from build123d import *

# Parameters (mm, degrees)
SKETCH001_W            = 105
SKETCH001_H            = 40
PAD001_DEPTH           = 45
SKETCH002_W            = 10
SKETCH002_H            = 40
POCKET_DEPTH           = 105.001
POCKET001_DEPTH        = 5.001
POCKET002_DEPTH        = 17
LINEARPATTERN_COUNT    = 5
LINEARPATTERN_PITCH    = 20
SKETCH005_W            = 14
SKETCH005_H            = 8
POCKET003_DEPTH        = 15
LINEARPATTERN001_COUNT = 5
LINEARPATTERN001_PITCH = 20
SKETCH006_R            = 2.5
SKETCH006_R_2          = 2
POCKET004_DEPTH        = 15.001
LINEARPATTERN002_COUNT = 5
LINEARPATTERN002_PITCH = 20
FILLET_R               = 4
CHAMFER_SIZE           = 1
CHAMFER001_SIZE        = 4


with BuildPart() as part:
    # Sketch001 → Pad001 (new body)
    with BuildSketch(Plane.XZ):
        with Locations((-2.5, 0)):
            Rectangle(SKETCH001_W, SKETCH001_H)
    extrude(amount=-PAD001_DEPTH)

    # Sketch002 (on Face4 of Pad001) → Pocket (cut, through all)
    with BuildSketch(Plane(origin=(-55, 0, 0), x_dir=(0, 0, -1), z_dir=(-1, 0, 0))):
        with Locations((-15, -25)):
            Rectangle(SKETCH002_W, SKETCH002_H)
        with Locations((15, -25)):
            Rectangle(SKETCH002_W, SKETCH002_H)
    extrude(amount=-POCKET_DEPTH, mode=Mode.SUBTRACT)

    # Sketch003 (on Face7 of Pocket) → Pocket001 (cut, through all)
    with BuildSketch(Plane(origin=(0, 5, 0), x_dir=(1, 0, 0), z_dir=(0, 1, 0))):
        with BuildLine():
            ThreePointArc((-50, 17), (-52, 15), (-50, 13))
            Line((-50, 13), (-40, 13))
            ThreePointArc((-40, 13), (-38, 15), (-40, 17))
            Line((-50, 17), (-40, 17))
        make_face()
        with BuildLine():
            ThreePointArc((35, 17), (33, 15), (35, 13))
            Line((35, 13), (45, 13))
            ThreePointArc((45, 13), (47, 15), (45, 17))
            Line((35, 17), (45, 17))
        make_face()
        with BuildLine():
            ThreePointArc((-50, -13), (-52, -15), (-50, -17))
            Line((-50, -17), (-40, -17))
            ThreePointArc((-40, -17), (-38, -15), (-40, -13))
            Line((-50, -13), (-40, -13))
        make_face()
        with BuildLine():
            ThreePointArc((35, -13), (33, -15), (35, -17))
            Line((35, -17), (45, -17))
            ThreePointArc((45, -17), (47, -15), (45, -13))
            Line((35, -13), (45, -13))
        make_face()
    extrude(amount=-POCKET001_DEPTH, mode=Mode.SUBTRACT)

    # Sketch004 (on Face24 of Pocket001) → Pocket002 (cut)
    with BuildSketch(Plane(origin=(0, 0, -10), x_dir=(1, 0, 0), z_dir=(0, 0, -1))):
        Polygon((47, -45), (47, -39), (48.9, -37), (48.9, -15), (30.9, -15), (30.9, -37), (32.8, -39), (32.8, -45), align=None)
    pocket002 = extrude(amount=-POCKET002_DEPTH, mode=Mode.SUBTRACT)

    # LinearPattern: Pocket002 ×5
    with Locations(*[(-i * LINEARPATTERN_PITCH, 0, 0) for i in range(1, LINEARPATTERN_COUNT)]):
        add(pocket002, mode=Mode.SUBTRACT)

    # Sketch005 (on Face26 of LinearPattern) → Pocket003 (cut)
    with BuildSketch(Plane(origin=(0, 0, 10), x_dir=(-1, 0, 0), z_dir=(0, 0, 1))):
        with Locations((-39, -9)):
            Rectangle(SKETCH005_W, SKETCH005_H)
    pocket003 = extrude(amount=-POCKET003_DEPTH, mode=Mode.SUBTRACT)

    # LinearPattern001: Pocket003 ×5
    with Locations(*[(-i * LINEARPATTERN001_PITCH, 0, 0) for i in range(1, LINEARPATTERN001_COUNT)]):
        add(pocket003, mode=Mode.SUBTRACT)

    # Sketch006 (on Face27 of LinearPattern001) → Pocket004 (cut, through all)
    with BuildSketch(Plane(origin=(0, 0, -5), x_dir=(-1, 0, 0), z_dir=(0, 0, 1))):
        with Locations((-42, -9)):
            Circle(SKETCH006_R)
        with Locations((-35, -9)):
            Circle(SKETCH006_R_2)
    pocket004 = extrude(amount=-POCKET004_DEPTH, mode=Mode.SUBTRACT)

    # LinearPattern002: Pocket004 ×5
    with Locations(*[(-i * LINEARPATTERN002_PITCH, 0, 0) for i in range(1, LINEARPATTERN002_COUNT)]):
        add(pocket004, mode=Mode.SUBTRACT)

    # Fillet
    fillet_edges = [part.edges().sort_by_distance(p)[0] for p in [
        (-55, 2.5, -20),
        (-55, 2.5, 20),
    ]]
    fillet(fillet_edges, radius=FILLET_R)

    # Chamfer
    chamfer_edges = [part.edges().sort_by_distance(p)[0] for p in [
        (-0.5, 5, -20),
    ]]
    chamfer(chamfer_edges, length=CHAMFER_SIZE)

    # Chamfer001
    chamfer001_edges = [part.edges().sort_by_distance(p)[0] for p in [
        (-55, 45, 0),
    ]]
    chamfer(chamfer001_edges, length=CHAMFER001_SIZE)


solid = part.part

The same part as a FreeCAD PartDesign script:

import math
import FreeCAD as App
import Part
import Sketcher
from FreeCAD import Vector


def edges_at(feature, points):
    """Names of the edges that pass closest to the given points."""
    edges = feature.Shape.Edges
    near = lambda p: min(range(len(edges)), key=lambda i: edges[i].distToShape(Part.Vertex(*p))[0])
    return sorted({f"Edge{near(p) + 1}" for p in points})


def add_polygon(sketch, points):
    """Adds a closed chain of lines whose ends are joined by coincident constraints."""
    first, n = sketch.GeometryCount, len(points)
    for a, b in zip(points, points[1:] + points[:1]):
        sketch.addGeometry(Part.LineSegment(App.Vector(*a, 0), App.Vector(*b, 0)), False)
    for i in range(n):
        sketch.addConstraint(Sketcher.Constraint("Coincident", first + i, 2, first + (i + 1) % n, 1))

doc = App.newDocument("Part")
params = doc.addObject("Spreadsheet::Sheet", "Params")
for row, (alias, value) in enumerate([
    ("sketch1_width", "105 mm"),
    ("sketch1_height", "40 mm"),
    ("pad1_length", "45 mm"),
    ("sketch2_width", "40 mm"),
    ("sketch2_height", "10 mm"),
    ("sketch3_radius", "2 mm"),
    ("sketch3_width", "10 mm"),
    ("sketch4_width", "18 mm"),
    ("sketch4_height", "6 mm"),
    ("sketch4_height2", "22 mm"),
    ("sketch4_width2", "14.2 mm"),
    ("pocket3_length", "17 mm"),
    ("linearpattern_pitch", "20 mm"),
    ("sketch5_width", "14 mm"),
    ("sketch5_height", "8 mm"),
    ("pocket4_length", "15 mm"),
    ("linearpattern2_pitch", "20 mm"),
    ("sketch6_diameter", "5 mm"),
    ("sketch6_diameter2", "4 mm"),
    ("linearpattern3_pitch", "20 mm"),
    ("fillet_radius", "4 mm"),
    ("chamfer_size", "1 mm"),
    ("chamfer2_size", "4 mm"),
], start=1):
    params.set(f"A{row}", alias)
    params.set(f"B{row}", "=" + value)
    params.setAlias(f"B{row}", alias)

body = doc.addObject("PartDesign::Body", "Body")

# Sketch on XZ plane
sketch1 = body.newObject("Sketcher::SketchObject", "Sketch")
sketch1.AttachmentSupport = (doc.getObject("XZ_Plane"), [""])
sketch1.MapMode = "FlatFace"
add_polygon(sketch1, [(-55, 20), (-55, -20), (50, -20), (50, 20)])  # lines 0-3
sketch1.addConstraint([
    Sketcher.Constraint("Vertical", 0),
    Sketcher.Constraint("Horizontal", 1),
    Sketcher.Constraint("Vertical", 2),
    Sketcher.Constraint("Horizontal", 3),
    Sketcher.Constraint("DistanceX", 1, 1, 1, 2, 105.0),
    Sketcher.Constraint("DistanceY", 0, 2, 0, 1, 40.0),
    Sketcher.Constraint("DistanceX", 0, 2, -1, 1, 55.0),
    Sketcher.Constraint("DistanceY", 0, 2, -1, 1, 20.0),
])
sketch1.setExpression("Constraints[8]", "Params.sketch1_width")
sketch1.setExpression("Constraints[9]", "Params.sketch1_height")
pad1 = body.newObject("PartDesign::Pad", "Pad")
pad1.Profile = sketch1
pad1.setExpression("Length", "Params.pad1_length")
pad1.Reversed = True

# Sketch on YZ plane
sketch2 = body.newObject("Sketcher::SketchObject", "Sketch001")
sketch2.AttachmentSupport = (doc.getObject("YZ_Plane"), [""])
sketch2.MapMode = "FlatFace"
sketch2.AttachmentOffset = App.Placement(Vector(0, 0, -55), App.Rotation())
add_polygon(sketch2, [(5, 20), (45, 20), (45, 10), (5, 10)])  # lines 0-3
add_polygon(sketch2, [(5, -10), (45, -10), (45, -20), (5, -20)])  # lines 4-7
sketch2.addConstraint([
    Sketcher.Constraint("Horizontal", 0),
    Sketcher.Constraint("Vertical", 1),
    Sketcher.Constraint("Horizontal", 2),
    Sketcher.Constraint("Vertical", 3),
    Sketcher.Constraint("Horizontal", 4),
    Sketcher.Constraint("Vertical", 5),
    Sketcher.Constraint("Horizontal", 6),
    Sketcher.Constraint("Vertical", 7),
    Sketcher.Constraint("Symmetric", 1, 2, 4, 2, -1),
    Sketcher.Constraint("Symmetric", 3, 2, 6, 2, -1),
    Sketcher.Constraint("DistanceX", 0, 1, 0, 2, 40.0),
    Sketcher.Constraint("DistanceY", 1, 2, 1, 1, 10.0),
    Sketcher.Constraint("DistanceX", -1, 1, 0, 2, 45.0),
    Sketcher.Constraint("DistanceY", -1, 1, 0, 2, 20.0),
])
sketch2.setExpression("Constraints[18]", "Params.sketch2_width")
sketch2.setExpression("Constraints[19]", "Params.sketch2_height")
pocket1 = body.newObject("PartDesign::Pocket", "Pocket")
pocket1.Profile = sketch2
pocket1.Type = "ThroughAll"
pocket1.Reversed = True

# Sketch on XZ plane
sketch3 = body.newObject("Sketcher::SketchObject", "Sketch002")
sketch3.AttachmentSupport = (doc.getObject("XZ_Plane"), [""])
sketch3.MapMode = "FlatFace"
sketch3.AttachmentOffset = App.Placement(Vector(0, 0, -5), App.Rotation())
sketch3.addGeometry([
    Part.ArcOfCircle(Part.Circle(Vector(-50, -15, 0), Vector(0, 0, 1), 2), math.radians(90), math.radians(270)),  # 0
    Part.LineSegment(Vector(-50, -13, 0), Vector(-40, -13, 0)),  # 1
    Part.ArcOfCircle(Part.Circle(Vector(-40, -15, 0), Vector(0, 0, 1), 2), math.radians(-90), math.radians(90)),  # 2
    Part.LineSegment(Vector(-40, -17, 0), Vector(-50, -17, 0)),  # 3
    Part.ArcOfCircle(Part.Circle(Vector(35, -15, 0), Vector(0, 0, 1), 2), math.radians(90), math.radians(270)),  # 4
    Part.LineSegment(Vector(35, -13, 0), Vector(45, -13, 0)),  # 5
    Part.ArcOfCircle(Part.Circle(Vector(45, -15, 0), Vector(0, 0, 1), 2), math.radians(-90), math.radians(90)),  # 6
    Part.LineSegment(Vector(45, -17, 0), Vector(35, -17, 0)),  # 7
    Part.ArcOfCircle(Part.Circle(Vector(-50, 15, 0), Vector(0, 0, 1), 2), math.radians(90), math.radians(270)),  # 8
    Part.LineSegment(Vector(-50, 17, 0), Vector(-40, 17, 0)),  # 9
    Part.ArcOfCircle(Part.Circle(Vector(-40, 15, 0), Vector(0, 0, 1), 2), math.radians(-90), math.radians(90)),  # 10
    Part.LineSegment(Vector(-40, 13, 0), Vector(-50, 13, 0)),  # 11
    Part.ArcOfCircle(Part.Circle(Vector(35, 15, 0), Vector(0, 0, 1), 2), math.radians(90), math.radians(270)),  # 12
    Part.LineSegment(Vector(35, 17, 0), Vector(45, 17, 0)),  # 13
    Part.ArcOfCircle(Part.Circle(Vector(45, 15, 0), Vector(0, 0, 1), 2), math.radians(-90), math.radians(90)),  # 14
    Part.LineSegment(Vector(45, 13, 0), Vector(35, 13, 0)),  # 15
], False)
sketch3.addConstraint([
    Sketcher.Constraint("Tangent", 0, 1, 1, 1),
    Sketcher.Constraint("Tangent", 1, 2, 2, 2),
    Sketcher.Constraint("Tangent", 2, 1, 3, 1),
    Sketcher.Constraint("Tangent", 3, 2, 0, 2),
    Sketcher.Constraint("Tangent", 4, 1, 5, 1),
    Sketcher.Constraint("Tangent", 5, 2, 6, 2),
    Sketcher.Constraint("Tangent", 6, 1, 7, 1),
    Sketcher.Constraint("Tangent", 7, 2, 4, 2),
    Sketcher.Constraint("Tangent", 8, 1, 9, 1),
    Sketcher.Constraint("Tangent", 9, 2, 10, 2),
    Sketcher.Constraint("Tangent", 10, 1, 11, 1),
    Sketcher.Constraint("Tangent", 11, 2, 8, 2),
    Sketcher.Constraint("Tangent", 12, 1, 13, 1),
    Sketcher.Constraint("Tangent", 13, 2, 14, 2),
    Sketcher.Constraint("Tangent", 14, 1, 15, 1),
    Sketcher.Constraint("Tangent", 15, 2, 12, 2),
    Sketcher.Constraint("Horizontal", 1),
    Sketcher.Constraint("Horizontal", 3),
    Sketcher.Constraint("Horizontal", 5),
    Sketcher.Constraint("Horizontal", 7),
    Sketcher.Constraint("Horizontal", 9),
    Sketcher.Constraint("Horizontal", 11),
    Sketcher.Constraint("Horizontal", 13),
    Sketcher.Constraint("Horizontal", 15),
    Sketcher.Constraint("Equal", 2, 4),
    Sketcher.Constraint("Equal", 6, 8),
    Sketcher.Constraint("Equal", 10, 12),
    Sketcher.Constraint("Symmetric", 0, 3, 8, 3, -1),
    Sketcher.Constraint("Symmetric", 4, 3, 12, 3, -1),
    Sketcher.Constraint("Horizontal", 2, 3, 4, 3),
    Sketcher.Constraint("Vertical", 2, 3, 10, 3),
    Sketcher.Constraint("Vertical", 6, 3, 14, 3),
    Sketcher.Constraint("Equal", 3, 5),
    Sketcher.Constraint("Radius", 0, 2.0),
    Sketcher.Constraint("DistanceX", 1, 1, 1, 2, 10.0),
    Sketcher.Constraint("DistanceX", 0, 3, -1, 1, 50.0),
    Sketcher.Constraint("DistanceY", 0, 3, -1, 1, 15.0),
    Sketcher.Constraint("DistanceX", -1, 1, 4, 3, 35.0),
])
sketch3.setExpression("Constraints[33]", "Params.sketch3_radius")
sketch3.setExpression("Constraints[34]", "Params.sketch3_width")
pocket2 = body.newObject("PartDesign::Pocket", "Pocket001")
pocket2.Profile = sketch3
pocket2.Type = "ThroughAll"
pocket2.Reversed = True

# Sketch on XY plane
sketch4 = body.newObject("Sketcher::SketchObject", "Sketch003")
sketch4.AttachmentSupport = (doc.getObject("XY_Plane"), [""])
sketch4.MapMode = "FlatFace"
sketch4.AttachmentOffset = App.Placement(Vector(0, 0, -10), App.Rotation())
add_polygon(sketch4, [(47, 45), (47, 39), (48.9, 37), (48.9, 15), (30.9, 15), (30.9, 37), (32.8, 39), (32.8, 45)])  # lines 0-7
sketch4.addConstraint([
    Sketcher.Constraint("Vertical", 0),
    Sketcher.Constraint("Vertical", 2),
    Sketcher.Constraint("Horizontal", 3),
    Sketcher.Constraint("Vertical", 4),
    Sketcher.Constraint("Vertical", 6),
    Sketcher.Constraint("Horizontal", 7),
    Sketcher.Constraint("Horizontal", 1, 2, 4, 2),
    Sketcher.Constraint("Horizontal", 0, 2, 5, 2),
    Sketcher.Constraint("Equal", 1, 5),
    Sketcher.Constraint("DistanceX", 3, 2, 3, 1, 18.0),
    Sketcher.Constraint("DistanceY", 0, 2, 0, 1, 6.0),
    Sketcher.Constraint("DistanceY", 2, 2, 2, 1, 22.0),
    Sketcher.Constraint("DistanceX", 7, 1, 7, 2, 14.2),
    Sketcher.Constraint("DistanceX", -1, 1, 0, 2, 47.0),
    Sketcher.Constraint("DistanceY", -1, 1, 0, 2, 39.0),
    Sketcher.Constraint("DistanceY", -1, 1, 1, 2, 37.0),
])
sketch4.setExpression("Constraints[17]", "Params.sketch4_width")
sketch4.setExpression("Constraints[18]", "Params.sketch4_height")
sketch4.setExpression("Constraints[19]", "Params.sketch4_height2")
sketch4.setExpression("Constraints[20]", "Params.sketch4_width2")
pocket3 = body.newObject("PartDesign::Pocket", "Pocket002")
pocket3.Profile = sketch4
pocket3.setExpression("Length", "Params.pocket3_length")
pocket3.Reversed = True
doc.recompute()

linearpattern = body.newObject("PartDesign::LinearPattern", "LinearPattern")
linearpattern.Originals = [pocket3]
linearpattern.Direction = (doc.getObject("X_Axis"), [""])
linearpattern.Mode = "offset"
linearpattern.setExpression("Offset", "Params.linearpattern_pitch")
linearpattern.Occurrences = 5
linearpattern.Reversed = True
body.Tip = linearpattern

# Sketch on XY plane
sketch5 = body.newObject("Sketcher::SketchObject", "Sketch004")
sketch5.AttachmentSupport = (doc.getObject("XY_Plane"), [""])
sketch5.MapMode = "FlatFace"
sketch5.AttachmentOffset = App.Placement(Vector(0, 0, 10), App.Rotation())
add_polygon(sketch5, [(46, 5), (46, 13), (32, 13), (32, 5)])  # lines 0-3
sketch5.addConstraint([
    Sketcher.Constraint("Vertical", 0),
    Sketcher.Constraint("Horizontal", 1),
    Sketcher.Constraint("Vertical", 2),
    Sketcher.Constraint("Horizontal", 3),
    Sketcher.Constraint("DistanceX", 1, 2, 1, 1, 14.0),
    Sketcher.Constraint("DistanceY", 0, 1, 0, 2, 8.0),
    Sketcher.Constraint("DistanceX", -1, 1, 0, 2, 46.0),
    Sketcher.Constraint("DistanceY", -1, 1, 0, 2, 13.0),
])
sketch5.setExpression("Constraints[8]", "Params.sketch5_width")
sketch5.setExpression("Constraints[9]", "Params.sketch5_height")
pocket4 = body.newObject("PartDesign::Pocket", "Pocket003")
pocket4.Profile = sketch5
pocket4.setExpression("Length", "Params.pocket4_length")
doc.recompute()

linearpattern2 = body.newObject("PartDesign::LinearPattern", "LinearPattern001")
linearpattern2.Originals = [pocket4]
linearpattern2.Direction = (doc.getObject("X_Axis"), [""])
linearpattern2.Mode = "offset"
linearpattern2.setExpression("Offset", "Params.linearpattern2_pitch")
linearpattern2.Occurrences = 5
linearpattern2.Reversed = True
body.Tip = linearpattern2

# Sketch on XY plane
sketch6 = body.newObject("Sketcher::SketchObject", "Sketch005")
sketch6.AttachmentSupport = (doc.getObject("XY_Plane"), [""])
sketch6.MapMode = "FlatFace"
sketch6.AttachmentOffset = App.Placement(Vector(0, 0, -5), App.Rotation())
sketch6.addGeometry([
    Part.Circle(Vector(42, 9, 0), Vector(0, 0, 1), 2.5),
    Part.Circle(Vector(35, 9, 0), Vector(0, 0, 1), 2),
], False)
sketch6.addConstraint([
    Sketcher.Constraint("Horizontal", 0, 3, 1, 3),
    Sketcher.Constraint("Diameter", 0, 5.0),
    Sketcher.Constraint("Diameter", 1, 4.0),
    Sketcher.Constraint("DistanceX", -1, 1, 0, 3, 42.0),
    Sketcher.Constraint("DistanceY", -1, 1, 0, 3, 9.0),
    Sketcher.Constraint("DistanceX", -1, 1, 1, 3, 35.0),
])
sketch6.setExpression("Constraints[1]", "Params.sketch6_diameter")
sketch6.setExpression("Constraints[2]", "Params.sketch6_diameter2")
pocket5 = body.newObject("PartDesign::Pocket", "Pocket004")
pocket5.Profile = sketch6
pocket5.Type = "ThroughAll"
doc.recompute()

linearpattern3 = body.newObject("PartDesign::LinearPattern", "LinearPattern002")
linearpattern3.Originals = [pocket5]
linearpattern3.Direction = (doc.getObject("X_Axis"), [""])
linearpattern3.Mode = "offset"
linearpattern3.setExpression("Offset", "Params.linearpattern3_pitch")
linearpattern3.Occurrences = 5
linearpattern3.Reversed = True
body.Tip = linearpattern3
doc.recompute()

fillet = body.newObject("PartDesign::Fillet", "Fillet")
fillet.Base = (linearpattern3, edges_at(linearpattern3, [(-55, 2.5, -20), (-55, 2.5, 20)]))
fillet.setExpression("Radius", "Params.fillet_radius")
doc.recompute()

chamfer = body.newObject("PartDesign::Chamfer", "Chamfer")
chamfer.Base = (fillet, edges_at(fillet, [(-0.5, 5, -20)]))
chamfer.setExpression("Size", "Params.chamfer_size")
doc.recompute()

chamfer2 = body.newObject("PartDesign::Chamfer", "Chamfer001")
chamfer2.Base = (chamfer, edges_at(chamfer, [(-55, 45, 0)]))
chamfer2.setExpression("Size", "Params.chamfer2_size")

doc.recompute()
